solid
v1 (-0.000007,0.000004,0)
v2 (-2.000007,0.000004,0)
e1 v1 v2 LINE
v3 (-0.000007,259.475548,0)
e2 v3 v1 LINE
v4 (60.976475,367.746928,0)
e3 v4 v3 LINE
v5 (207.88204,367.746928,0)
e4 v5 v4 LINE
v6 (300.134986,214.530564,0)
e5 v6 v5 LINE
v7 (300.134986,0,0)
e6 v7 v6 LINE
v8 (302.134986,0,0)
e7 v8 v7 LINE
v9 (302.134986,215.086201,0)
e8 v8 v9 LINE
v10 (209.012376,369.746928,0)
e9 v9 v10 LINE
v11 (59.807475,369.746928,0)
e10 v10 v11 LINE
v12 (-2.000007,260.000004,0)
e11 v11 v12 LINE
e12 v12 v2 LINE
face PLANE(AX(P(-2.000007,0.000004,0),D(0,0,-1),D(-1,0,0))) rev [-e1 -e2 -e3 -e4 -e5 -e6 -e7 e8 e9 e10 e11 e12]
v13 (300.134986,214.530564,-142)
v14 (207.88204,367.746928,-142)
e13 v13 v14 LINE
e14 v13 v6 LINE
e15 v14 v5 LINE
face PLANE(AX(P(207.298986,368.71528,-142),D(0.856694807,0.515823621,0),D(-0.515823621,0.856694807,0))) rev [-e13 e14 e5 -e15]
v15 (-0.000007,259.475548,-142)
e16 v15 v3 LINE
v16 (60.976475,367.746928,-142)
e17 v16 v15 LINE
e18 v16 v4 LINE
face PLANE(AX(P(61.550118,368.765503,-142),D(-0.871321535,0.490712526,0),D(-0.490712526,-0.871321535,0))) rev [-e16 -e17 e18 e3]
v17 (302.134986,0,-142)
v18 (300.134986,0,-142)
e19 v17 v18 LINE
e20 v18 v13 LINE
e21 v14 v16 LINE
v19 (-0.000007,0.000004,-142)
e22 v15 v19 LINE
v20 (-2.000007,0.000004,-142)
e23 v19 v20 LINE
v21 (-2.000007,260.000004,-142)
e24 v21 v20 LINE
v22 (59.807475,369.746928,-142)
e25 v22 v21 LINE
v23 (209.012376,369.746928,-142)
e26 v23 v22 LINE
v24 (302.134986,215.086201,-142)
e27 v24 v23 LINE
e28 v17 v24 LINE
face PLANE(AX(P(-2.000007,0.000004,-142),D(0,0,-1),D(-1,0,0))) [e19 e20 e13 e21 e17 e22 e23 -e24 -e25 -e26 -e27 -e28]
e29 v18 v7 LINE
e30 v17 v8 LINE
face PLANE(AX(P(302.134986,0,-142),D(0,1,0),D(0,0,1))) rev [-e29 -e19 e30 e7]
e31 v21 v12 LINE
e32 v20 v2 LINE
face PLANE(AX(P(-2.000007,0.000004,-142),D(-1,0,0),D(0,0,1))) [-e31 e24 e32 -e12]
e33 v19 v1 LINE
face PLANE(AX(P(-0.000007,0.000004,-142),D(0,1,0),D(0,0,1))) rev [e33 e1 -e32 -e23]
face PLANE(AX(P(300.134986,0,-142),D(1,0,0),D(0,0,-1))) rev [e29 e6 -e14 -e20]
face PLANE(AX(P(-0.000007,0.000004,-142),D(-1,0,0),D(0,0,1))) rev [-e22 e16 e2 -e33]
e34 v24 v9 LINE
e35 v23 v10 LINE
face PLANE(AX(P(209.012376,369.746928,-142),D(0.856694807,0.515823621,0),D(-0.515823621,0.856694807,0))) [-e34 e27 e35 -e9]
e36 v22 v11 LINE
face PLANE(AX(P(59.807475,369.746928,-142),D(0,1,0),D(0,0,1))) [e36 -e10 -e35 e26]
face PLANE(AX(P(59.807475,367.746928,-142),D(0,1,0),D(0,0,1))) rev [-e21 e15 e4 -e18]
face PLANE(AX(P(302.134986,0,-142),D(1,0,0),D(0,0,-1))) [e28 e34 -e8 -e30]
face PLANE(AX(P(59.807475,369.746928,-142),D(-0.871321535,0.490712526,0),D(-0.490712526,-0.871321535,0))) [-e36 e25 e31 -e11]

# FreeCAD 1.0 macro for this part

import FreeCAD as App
import Part
import Sketcher

V = App.Vector
Q = App.Units.Quantity

doc = App.newDocument("Part")
body = doc.addObject("PartDesign::Body", "Body")

# Sketch on XY plane
sketch1 = doc.addObject("Sketcher::SketchObject", "Sketch")
body.addObject(sketch1)
sketch1.AttachmentSupport = (doc.XY_Plane, [""])
sketch1.MapMode = "FlatFace"
sketch1.addGeometry(Part.LineSegment(V(-2, 260, 0), V(-2, 0, 0)), False)
sketch1.addGeometry(Part.LineSegment(V(-2, 0, 0), V(0, 0, 0)), False)
sketch1.addGeometry(Part.LineSegment(V(0, 0, 0), V(0, 259.5, 0)), False)
sketch1.addGeometry(Part.LineSegment(V(0, 259.5, 0), V(61, 367.7, 0)), False)
sketch1.addGeometry(Part.LineSegment(V(61, 367.7, 0), V(207.9, 367.7, 0)), False)
sketch1.addGeometry(Part.LineSegment(V(207.9, 367.7, 0), V(300.1, 214.5, 0)), False)
sketch1.addGeometry(Part.LineSegment(V(300.1, 214.5, 0), V(300.1, 0, 0)), False)
sketch1.addGeometry(Part.LineSegment(V(300.1, 0, 0), V(302.1, 0, 0)), False)
sketch1.addGeometry(Part.LineSegment(V(302.1, 0, 0), V(302.1, 215.1, 0)), False)
sketch1.addGeometry(Part.LineSegment(V(302.1, 215.1, 0), V(209, 369.7, 0)), False)
sketch1.addGeometry(Part.LineSegment(V(209, 369.7, 0), V(59.8, 369.7, 0)), False)
sketch1.addGeometry(Part.LineSegment(V(59.8, 369.7, 0), V(-2, 260, 0)), False)
sketch1.addConstraint(Sketcher.Constraint("Coincident", 0, 2, 1, 1))
sketch1.addConstraint(Sketcher.Constraint("Coincident", 1, 2, 2, 1))
sketch1.addConstraint(Sketcher.Constraint("Coincident", 2, 2, 3, 1))
sketch1.addConstraint(Sketcher.Constraint("Coincident", 3, 2, 4, 1))
sketch1.addConstraint(Sketcher.Constraint("Coincident", 4, 2, 5, 1))
sketch1.addConstraint(Sketcher.Constraint("Coincident", 5, 2, 6, 1))
sketch1.addConstraint(Sketcher.Constraint("Coincident", 6, 2, 7, 1))
sketch1.addConstraint(Sketcher.Constraint("Coincident", 7, 2, 8, 1))
sketch1.addConstraint(Sketcher.Constraint("Coincident", 8, 2, 9, 1))
sketch1.addConstraint(Sketcher.Constraint("Coincident", 9, 2, 10, 1))
sketch1.addConstraint(Sketcher.Constraint("Coincident", 10, 2, 11, 1))
sketch1.addConstraint(Sketcher.Constraint("Coincident", 11, 2, 0, 1))
sketch1.addConstraint(Sketcher.Constraint("Vertical", 0))
sketch1.addConstraint(Sketcher.Constraint("Horizontal", 1))
sketch1.addConstraint(Sketcher.Constraint("Vertical", 2))
sketch1.addConstraint(Sketcher.Constraint("Horizontal", 4))
sketch1.addConstraint(Sketcher.Constraint("Vertical", 6))
sketch1.addConstraint(Sketcher.Constraint("Horizontal", 7))
sketch1.addConstraint(Sketcher.Constraint("Vertical", 8))
sketch1.addConstraint(Sketcher.Constraint("Horizontal", 10))
sketch1.addConstraint(Sketcher.Constraint("Coincident", 1, 2, -1, 1))
sketch1.addConstraint(Sketcher.Constraint("PointOnObject", 6, 2, -1))
sketch1.addConstraint(Sketcher.Constraint("Parallel", 5, 9))
sketch1.addConstraint(Sketcher.Constraint("Parallel", 3, 11))
sketch1.addConstraint(Sketcher.Constraint("Equal", 1, 7))
sketch1.addConstraint(Sketcher.Constraint("DistanceX", 1, 1, 1, 2, Q("2 mm")))
sketch1.addConstraint(Sketcher.Constraint("DistanceY", 0, 2, 0, 1, Q("260 mm")))
sketch1.addConstraint(Sketcher.Constraint("DistanceY", 4, 2, 9, 2, Q("2 mm")))
sketch1.addConstraint(Sketcher.Constraint("DistanceX", 10, 2, 10, 1, Q("149.204901 mm")))
sketch1.addConstraint(Sketcher.Constraint("DistanceY", 8, 1, 8, 2, Q("215.086201 mm")))
sketch1.addConstraint(Sketcher.Constraint("DistanceX", 10, 2, 3, 2, Q("1.169 mm")))
sketch1.addConstraint(Sketcher.Constraint("Distance", 5, Q("178.845911 mm")))
sketch1.addConstraint(Sketcher.Constraint("DistanceX", 4, 1, 4, 2, Q("146.905565 mm")))
sketch1.addConstraint(Sketcher.Constraint("DistanceY", 2, 1, 2, 2, Q("259.475545 mm")))
sketch1.addConstraint(Sketcher.Constraint("DistanceY", 6, 2, 6, 1, Q("214.530564 mm")))
pad1 = doc.addObject("PartDesign::Pad", "Pad")
body.addObject(pad1)
pad1.Profile = sketch1
pad1.Length = 142
pad1.Reversed = True

doc.recompute()
